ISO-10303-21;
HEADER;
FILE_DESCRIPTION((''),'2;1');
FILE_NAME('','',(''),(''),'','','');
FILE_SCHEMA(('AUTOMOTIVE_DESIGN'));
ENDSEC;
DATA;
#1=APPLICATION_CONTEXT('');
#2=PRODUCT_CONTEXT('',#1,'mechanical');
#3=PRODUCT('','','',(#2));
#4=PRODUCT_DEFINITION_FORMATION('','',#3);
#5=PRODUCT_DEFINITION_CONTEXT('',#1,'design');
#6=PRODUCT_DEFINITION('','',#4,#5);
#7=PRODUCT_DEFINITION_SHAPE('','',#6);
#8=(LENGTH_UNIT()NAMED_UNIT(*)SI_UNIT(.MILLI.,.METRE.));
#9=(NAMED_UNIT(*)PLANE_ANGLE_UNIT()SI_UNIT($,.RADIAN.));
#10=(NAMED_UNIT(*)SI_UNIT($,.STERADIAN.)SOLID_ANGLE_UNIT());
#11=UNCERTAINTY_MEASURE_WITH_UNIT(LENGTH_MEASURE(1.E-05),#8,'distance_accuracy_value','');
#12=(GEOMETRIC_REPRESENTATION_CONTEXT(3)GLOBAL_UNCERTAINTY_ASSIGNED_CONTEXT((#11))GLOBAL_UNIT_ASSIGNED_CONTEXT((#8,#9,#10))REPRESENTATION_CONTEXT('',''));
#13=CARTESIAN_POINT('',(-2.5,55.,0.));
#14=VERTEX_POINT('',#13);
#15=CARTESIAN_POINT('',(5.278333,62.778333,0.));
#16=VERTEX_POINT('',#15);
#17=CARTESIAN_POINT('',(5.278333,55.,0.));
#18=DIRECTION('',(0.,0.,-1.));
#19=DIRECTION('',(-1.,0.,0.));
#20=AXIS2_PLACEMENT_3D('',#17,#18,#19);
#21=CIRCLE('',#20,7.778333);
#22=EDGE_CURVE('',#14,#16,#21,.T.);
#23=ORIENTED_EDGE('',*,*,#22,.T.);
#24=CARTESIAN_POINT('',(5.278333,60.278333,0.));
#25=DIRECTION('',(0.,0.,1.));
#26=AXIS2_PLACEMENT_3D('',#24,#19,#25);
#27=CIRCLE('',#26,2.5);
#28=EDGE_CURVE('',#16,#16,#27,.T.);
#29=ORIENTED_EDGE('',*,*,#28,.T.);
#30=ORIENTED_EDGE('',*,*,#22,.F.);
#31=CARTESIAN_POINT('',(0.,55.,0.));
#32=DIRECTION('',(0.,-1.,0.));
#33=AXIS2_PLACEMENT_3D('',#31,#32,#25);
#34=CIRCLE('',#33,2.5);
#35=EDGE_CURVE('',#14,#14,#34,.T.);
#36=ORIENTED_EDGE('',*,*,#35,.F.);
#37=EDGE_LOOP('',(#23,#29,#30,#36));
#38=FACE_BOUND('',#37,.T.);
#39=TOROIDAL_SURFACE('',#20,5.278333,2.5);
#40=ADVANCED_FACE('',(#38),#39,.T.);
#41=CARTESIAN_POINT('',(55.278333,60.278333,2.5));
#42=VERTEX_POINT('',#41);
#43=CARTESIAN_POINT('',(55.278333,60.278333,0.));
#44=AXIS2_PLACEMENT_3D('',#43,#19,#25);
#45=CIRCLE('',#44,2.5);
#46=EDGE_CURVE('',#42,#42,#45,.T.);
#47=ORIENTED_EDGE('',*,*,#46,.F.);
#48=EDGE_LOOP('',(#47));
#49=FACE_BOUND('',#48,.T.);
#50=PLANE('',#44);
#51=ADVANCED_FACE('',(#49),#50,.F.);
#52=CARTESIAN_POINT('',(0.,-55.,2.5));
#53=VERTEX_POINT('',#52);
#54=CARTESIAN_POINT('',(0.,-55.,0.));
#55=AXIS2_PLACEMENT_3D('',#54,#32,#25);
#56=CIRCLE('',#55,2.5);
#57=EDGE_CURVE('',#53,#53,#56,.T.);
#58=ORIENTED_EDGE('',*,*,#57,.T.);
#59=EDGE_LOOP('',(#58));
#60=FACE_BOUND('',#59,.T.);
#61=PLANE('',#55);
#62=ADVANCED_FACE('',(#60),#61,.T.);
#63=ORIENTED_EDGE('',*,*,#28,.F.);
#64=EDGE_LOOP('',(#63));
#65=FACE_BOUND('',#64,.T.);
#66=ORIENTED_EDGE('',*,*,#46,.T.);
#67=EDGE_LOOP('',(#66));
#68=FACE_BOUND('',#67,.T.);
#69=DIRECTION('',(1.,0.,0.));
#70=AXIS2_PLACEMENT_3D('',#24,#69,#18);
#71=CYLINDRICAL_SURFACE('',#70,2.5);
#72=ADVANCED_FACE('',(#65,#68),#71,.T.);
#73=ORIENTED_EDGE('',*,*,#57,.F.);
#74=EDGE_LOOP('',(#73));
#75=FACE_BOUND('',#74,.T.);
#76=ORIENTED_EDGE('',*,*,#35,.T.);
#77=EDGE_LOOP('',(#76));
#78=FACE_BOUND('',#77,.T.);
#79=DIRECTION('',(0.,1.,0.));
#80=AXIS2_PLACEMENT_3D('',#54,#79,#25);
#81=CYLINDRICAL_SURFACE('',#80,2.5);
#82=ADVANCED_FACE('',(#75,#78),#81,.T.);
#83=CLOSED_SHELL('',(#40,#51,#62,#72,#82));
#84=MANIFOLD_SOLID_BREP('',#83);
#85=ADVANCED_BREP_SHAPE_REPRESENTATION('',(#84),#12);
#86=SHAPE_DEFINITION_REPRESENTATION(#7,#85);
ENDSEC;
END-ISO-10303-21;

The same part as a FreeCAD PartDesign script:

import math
import FreeCAD as App
import Part
import Sketcher
from FreeCAD import Vector
Q = App.Units.Quantity

doc = App.newDocument("Part")
body = doc.addObject("PartDesign::Body", "Body")

sketch1 = body.newObject("Sketcher::SketchObject", "Sketch")
sketch1.AttachmentSupport = (doc.getObject("XZ_Plane"), [""])
sketch1.MapMode = "FlatFace"
sketch1.AttachmentOffset = App.Placement(Vector(0, 0, 55), App.Rotation())
sketch1.addGeometry(Part.Circle(Vector(0, 0, 0), Vector(0, 0, 1), 2.5), False)
sketch1.addConstraint(Sketcher.Constraint("Coincident", 0, 3, -1, 1))
sketch1.addConstraint(Sketcher.Constraint("Diameter", 0, Q("5 mm")))

sketch2 = body.newObject("Sketcher::SketchObject", "Sketch001")
sketch2.AttachmentSupport = (doc.getObject("XY_Plane"), [""])
sketch2.MapMode = "FlatFace"
sketch2.addGeometry(Part.LineSegment(Vector(0, -55, 0), Vector(0, 55, 0)), False)
sketch2.addGeometry(Part.ArcOfCircle(Part.Circle(Vector(5, 55, 0), Vector(0, 0, 1), 5), math.radians(90), math.radians(180)), False)
sketch2.addGeometry(Part.LineSegment(Vector(5, 60, 0), Vector(55, 60, 0)), False)
sketch2.addConstraint(Sketcher.Constraint("Tangent", 0, 2, 1, 2))
sketch2.addConstraint(Sketcher.Constraint("Tangent", 1, 1, 2, 1))
sketch2.addConstraint(Sketcher.Constraint("Vertical", 0))
sketch2.addConstraint(Sketcher.Constraint("Horizontal", 2))
sketch2.addConstraint(Sketcher.Constraint("Symmetric", 0, 1, 0, 2, -1, 1))
sketch2.addConstraint(Sketcher.Constraint("DistanceX", 2, 1, 2, 2, Q("50 mm")))
sketch2.addConstraint(Sketcher.Constraint("DistanceY", 0, 1, 0, 2, Q("110 mm")))
sketch2.addConstraint(Sketcher.Constraint("Radius", 1, Q("5.278333 mm")))
doc.recompute()

additivepipe = body.newObject("PartDesign::AdditivePipe", "AdditivePipe")
additivepipe.Profile = sketch1
additivepipe.Spine = (sketch2, ["Edge1", "Edge2", "Edge3"])

doc.recompute()
